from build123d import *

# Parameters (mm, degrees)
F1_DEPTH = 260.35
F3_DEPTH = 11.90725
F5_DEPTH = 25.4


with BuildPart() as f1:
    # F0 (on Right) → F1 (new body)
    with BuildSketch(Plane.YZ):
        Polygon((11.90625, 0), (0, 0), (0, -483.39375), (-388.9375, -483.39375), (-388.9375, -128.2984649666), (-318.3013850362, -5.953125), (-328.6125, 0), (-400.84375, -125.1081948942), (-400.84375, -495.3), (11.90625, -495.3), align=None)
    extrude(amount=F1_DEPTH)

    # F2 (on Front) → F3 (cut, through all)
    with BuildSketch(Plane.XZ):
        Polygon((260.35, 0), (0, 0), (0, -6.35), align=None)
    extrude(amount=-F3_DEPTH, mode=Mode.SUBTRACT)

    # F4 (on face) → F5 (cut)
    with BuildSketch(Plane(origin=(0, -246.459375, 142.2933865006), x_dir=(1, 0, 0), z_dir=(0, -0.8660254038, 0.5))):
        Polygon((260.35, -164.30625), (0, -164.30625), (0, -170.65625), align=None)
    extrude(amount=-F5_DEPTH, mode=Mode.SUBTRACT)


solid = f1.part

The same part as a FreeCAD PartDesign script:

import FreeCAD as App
import Part
import Sketcher
Q = App.Units.Quantity

doc = App.newDocument("Part")
params = doc.addObject("Spreadsheet::Sheet", "Params")
for row, (alias, value) in enumerate([
    ("sketch1_height", "19.5 in"),
    ("sketch1_width", "16.25 in"),
    ("sketch1_width2", "0.46875 in"),
    ("sketch1_width3", "15.3125 in"),
    ("sketch1_height2", "19.03125 in"),
    ("pad1_length", "10.25 in"),
    ("sketch2_width", "10.25 in"),
    ("sketch2_height", "0.25 in"),
    ("sketch3_width", "10.25 in"),
    ("sketch3_height", "0.25 in"),
    ("pocket2_length", "1 in"),
], start=1):
    params.set(f"A{row}", alias)
    params.set(f"B{row}", "=" + value)
    params.setAlias(f"B{row}", alias)

body = doc.addObject("PartDesign::Body", "Body")

sketch1 = body.newObject("Sketcher::SketchObject", "Sketch")
sketch1.AttachmentSupport = (doc.getObject("YZ_Plane"), [""])
sketch1.MapMode = "FlatFace"
sketch1.addGeometry([
    Part.LineSegment(App.Vector(11.90625, 0, 0), App.Vector(0, 0, 0)),
    Part.LineSegment(App.Vector(0, 0, 0), App.Vector(0, -483.39375, 0)),
    Part.LineSegment(App.Vector(0, -483.39375, 0), App.Vector(-388.9375, -483.39375, 0)),
    Part.LineSegment(App.Vector(-388.9375, -483.39375, 0), App.Vector(-388.9375, -128.298465, 0)),
    Part.LineSegment(App.Vector(-388.9375, -128.298465, 0), App.Vector(-318.301385, -5.953125, 0)),
    Part.LineSegment(App.Vector(-318.301385, -5.953125, 0), App.Vector(-328.6125, 0, 0)),
    Part.LineSegment(App.Vector(-328.6125, 0, 0), App.Vector(-400.84375, -125.108195, 0)),
    Part.LineSegment(App.Vector(-400.84375, -125.108195, 0), App.Vector(-400.84375, -495.3, 0)),
    Part.LineSegment(App.Vector(-400.84375, -495.3, 0), App.Vector(11.90625, -495.3, 0)),
    Part.LineSegment(App.Vector(11.90625, -495.3, 0), App.Vector(11.90625, 0, 0)),
], False)
sketch1.addConstraint([
    Sketcher.Constraint("Coincident", 0, 2, 1, 1),
    Sketcher.Constraint("Coincident", 1, 2, 2, 1),
    Sketcher.Constraint("Coincident", 2, 2, 3, 1),
    Sketcher.Constraint("Coincident", 3, 2, 4, 1),
    Sketcher.Constraint("Coincident", 4, 2, 5, 1),
    Sketcher.Constraint("Coincident", 5, 2, 6, 1),
    Sketcher.Constraint("Coincident", 6, 2, 7, 1),
    Sketcher.Constraint("Coincident", 7, 2, 8, 1),
    Sketcher.Constraint("Coincident", 8, 2, 9, 1),
    Sketcher.Constraint("Coincident", 9, 2, 0, 1),
    Sketcher.Constraint("Horizontal", 0),
    Sketcher.Constraint("Vertical", 1),
    Sketcher.Constraint("Horizontal", 2),
    Sketcher.Constraint("Vertical", 3),
    Sketcher.Constraint("Vertical", 7),
    Sketcher.Constraint("Horizontal", 8),
    Sketcher.Constraint("Vertical", 9),
    Sketcher.Constraint("Coincident", 0, 2, -1, 1),
    Sketcher.Constraint("PointOnObject", 5, 2, -1),
    Sketcher.Constraint("Perpendicular", 4, 5),
    Sketcher.Constraint("Perpendicular", 5, 6),
    Sketcher.Constraint("DistanceY", 9, 1, 9, 2, Q("19.5 in")),
    Sketcher.Constraint("Angle", 4, Q("60 deg")),
    Sketcher.Constraint("DistanceX", 8, 1, 8, 2, Q("16.25 in")),
    Sketcher.Constraint("DistanceX", 0, 2, 0, 1, Q("0.46875 in")),
    Sketcher.Constraint("DistanceX", 2, 2, 2, 1, Q("15.3125 in")),
    Sketcher.Constraint("DistanceY", 1, 2, 1, 1, Q("19.03125 in")),
    Sketcher.Constraint("Distance", 5, Q("0.46875 in")),
    Sketcher.Constraint("Distance", 6, Q("5.6875 in")),
])
sketch1.setExpression("Constraints[21]", "Params.sketch1_height")
sketch1.setExpression("Constraints[23]", "Params.sketch1_width")
sketch1.setExpression("Constraints[24]", "Params.sketch1_width2")
sketch1.setExpression("Constraints[25]", "Params.sketch1_width3")
sketch1.setExpression("Constraints[26]", "Params.sketch1_height2")
pad1 = body.newObject("PartDesign::Pad", "Pad")
pad1.Profile = sketch1
pad1.setExpression("Length", "Params.pad1_length")

sketch2 = body.newObject("Sketcher::SketchObject", "Sketch001")
sketch2.AttachmentSupport = (doc.getObject("XZ_Plane"), [""])
sketch2.MapMode = "FlatFace"
sketch2.addGeometry([
    Part.LineSegment(App.Vector(260.35, 0, 0), App.Vector(0, 0, 0)),
    Part.LineSegment(App.Vector(0, 0, 0), App.Vector(0, -6.35, 0)),
    Part.LineSegment(App.Vector(0, -6.35, 0), App.Vector(260.35, 0, 0)),
], False)
sketch2.addConstraint([
    Sketcher.Constraint("Coincident", 0, 2, 1, 1),
    Sketcher.Constraint("Coincident", 1, 2, 2, 1),
    Sketcher.Constraint("Coincident", 2, 2, 0, 1),
    Sketcher.Constraint("Horizontal", 0),
    Sketcher.Constraint("Vertical", 1),
    Sketcher.Constraint("Coincident", 0, 2, -1, 1),
    Sketcher.Constraint("DistanceX", 0, 2, 0, 1, Q("10.25 in")),
    Sketcher.Constraint("DistanceY", 1, 2, 1, 1, Q("0.25 in")),
])
sketch2.setExpression("Constraints[6]", "Params.sketch2_width")
sketch2.setExpression("Constraints[7]", "Params.sketch2_height")
pocket1 = body.newObject("PartDesign::Pocket", "Pocket")
pocket1.Profile = sketch2
pocket1.Type = "ThroughAll"

sketch3 = body.newObject("Sketcher::SketchObject", "Sketch002")
sketch3.Placement = App.Placement(App.Vector(0, -246.459375, 142.293387), App.Rotation(App.Vector(1, 0, 0), App.Vector(0, 0.5, 0.866025404), App.Vector(0, -0.866025404, 0.5), "ZXY"))
sketch3.addGeometry([
    Part.LineSegment(App.Vector(260.35, -164.30625, 0), App.Vector(0, -164.30625, 0)),
    Part.LineSegment(App.Vector(0, -164.30625, 0), App.Vector(0, -170.65625, 0)),
    Part.LineSegment(App.Vector(0, -170.65625, 0), App.Vector(260.35, -164.30625, 0)),
], False)
sketch3.addConstraint([
    Sketcher.Constraint("Coincident", 0, 2, 1, 1),
    Sketcher.Constraint("Coincident", 1, 2, 2, 1),
    Sketcher.Constraint("Coincident", 2, 2, 0, 1),
    Sketcher.Constraint("Horizontal", 0),
    Sketcher.Constraint("Vertical", 1),
    Sketcher.Constraint("PointOnObject", 0, 2, -2),
    Sketcher.Constraint("DistanceX", 0, 2, 0, 1, Q("10.25 in")),
    Sketcher.Constraint("DistanceY", 1, 2, 1, 1, Q("0.25 in")),
    Sketcher.Constraint("DistanceY", 0, 2, -1, 1, Q("6.46875 in")),
])
sketch3.setExpression("Constraints[6]", "Params.sketch3_width")
sketch3.setExpression("Constraints[7]", "Params.sketch3_height")
pocket2 = body.newObject("PartDesign::Pocket", "Pocket001")
pocket2.Profile = sketch3
pocket2.setExpression("Length", "Params.pocket2_length")

doc.recompute()
